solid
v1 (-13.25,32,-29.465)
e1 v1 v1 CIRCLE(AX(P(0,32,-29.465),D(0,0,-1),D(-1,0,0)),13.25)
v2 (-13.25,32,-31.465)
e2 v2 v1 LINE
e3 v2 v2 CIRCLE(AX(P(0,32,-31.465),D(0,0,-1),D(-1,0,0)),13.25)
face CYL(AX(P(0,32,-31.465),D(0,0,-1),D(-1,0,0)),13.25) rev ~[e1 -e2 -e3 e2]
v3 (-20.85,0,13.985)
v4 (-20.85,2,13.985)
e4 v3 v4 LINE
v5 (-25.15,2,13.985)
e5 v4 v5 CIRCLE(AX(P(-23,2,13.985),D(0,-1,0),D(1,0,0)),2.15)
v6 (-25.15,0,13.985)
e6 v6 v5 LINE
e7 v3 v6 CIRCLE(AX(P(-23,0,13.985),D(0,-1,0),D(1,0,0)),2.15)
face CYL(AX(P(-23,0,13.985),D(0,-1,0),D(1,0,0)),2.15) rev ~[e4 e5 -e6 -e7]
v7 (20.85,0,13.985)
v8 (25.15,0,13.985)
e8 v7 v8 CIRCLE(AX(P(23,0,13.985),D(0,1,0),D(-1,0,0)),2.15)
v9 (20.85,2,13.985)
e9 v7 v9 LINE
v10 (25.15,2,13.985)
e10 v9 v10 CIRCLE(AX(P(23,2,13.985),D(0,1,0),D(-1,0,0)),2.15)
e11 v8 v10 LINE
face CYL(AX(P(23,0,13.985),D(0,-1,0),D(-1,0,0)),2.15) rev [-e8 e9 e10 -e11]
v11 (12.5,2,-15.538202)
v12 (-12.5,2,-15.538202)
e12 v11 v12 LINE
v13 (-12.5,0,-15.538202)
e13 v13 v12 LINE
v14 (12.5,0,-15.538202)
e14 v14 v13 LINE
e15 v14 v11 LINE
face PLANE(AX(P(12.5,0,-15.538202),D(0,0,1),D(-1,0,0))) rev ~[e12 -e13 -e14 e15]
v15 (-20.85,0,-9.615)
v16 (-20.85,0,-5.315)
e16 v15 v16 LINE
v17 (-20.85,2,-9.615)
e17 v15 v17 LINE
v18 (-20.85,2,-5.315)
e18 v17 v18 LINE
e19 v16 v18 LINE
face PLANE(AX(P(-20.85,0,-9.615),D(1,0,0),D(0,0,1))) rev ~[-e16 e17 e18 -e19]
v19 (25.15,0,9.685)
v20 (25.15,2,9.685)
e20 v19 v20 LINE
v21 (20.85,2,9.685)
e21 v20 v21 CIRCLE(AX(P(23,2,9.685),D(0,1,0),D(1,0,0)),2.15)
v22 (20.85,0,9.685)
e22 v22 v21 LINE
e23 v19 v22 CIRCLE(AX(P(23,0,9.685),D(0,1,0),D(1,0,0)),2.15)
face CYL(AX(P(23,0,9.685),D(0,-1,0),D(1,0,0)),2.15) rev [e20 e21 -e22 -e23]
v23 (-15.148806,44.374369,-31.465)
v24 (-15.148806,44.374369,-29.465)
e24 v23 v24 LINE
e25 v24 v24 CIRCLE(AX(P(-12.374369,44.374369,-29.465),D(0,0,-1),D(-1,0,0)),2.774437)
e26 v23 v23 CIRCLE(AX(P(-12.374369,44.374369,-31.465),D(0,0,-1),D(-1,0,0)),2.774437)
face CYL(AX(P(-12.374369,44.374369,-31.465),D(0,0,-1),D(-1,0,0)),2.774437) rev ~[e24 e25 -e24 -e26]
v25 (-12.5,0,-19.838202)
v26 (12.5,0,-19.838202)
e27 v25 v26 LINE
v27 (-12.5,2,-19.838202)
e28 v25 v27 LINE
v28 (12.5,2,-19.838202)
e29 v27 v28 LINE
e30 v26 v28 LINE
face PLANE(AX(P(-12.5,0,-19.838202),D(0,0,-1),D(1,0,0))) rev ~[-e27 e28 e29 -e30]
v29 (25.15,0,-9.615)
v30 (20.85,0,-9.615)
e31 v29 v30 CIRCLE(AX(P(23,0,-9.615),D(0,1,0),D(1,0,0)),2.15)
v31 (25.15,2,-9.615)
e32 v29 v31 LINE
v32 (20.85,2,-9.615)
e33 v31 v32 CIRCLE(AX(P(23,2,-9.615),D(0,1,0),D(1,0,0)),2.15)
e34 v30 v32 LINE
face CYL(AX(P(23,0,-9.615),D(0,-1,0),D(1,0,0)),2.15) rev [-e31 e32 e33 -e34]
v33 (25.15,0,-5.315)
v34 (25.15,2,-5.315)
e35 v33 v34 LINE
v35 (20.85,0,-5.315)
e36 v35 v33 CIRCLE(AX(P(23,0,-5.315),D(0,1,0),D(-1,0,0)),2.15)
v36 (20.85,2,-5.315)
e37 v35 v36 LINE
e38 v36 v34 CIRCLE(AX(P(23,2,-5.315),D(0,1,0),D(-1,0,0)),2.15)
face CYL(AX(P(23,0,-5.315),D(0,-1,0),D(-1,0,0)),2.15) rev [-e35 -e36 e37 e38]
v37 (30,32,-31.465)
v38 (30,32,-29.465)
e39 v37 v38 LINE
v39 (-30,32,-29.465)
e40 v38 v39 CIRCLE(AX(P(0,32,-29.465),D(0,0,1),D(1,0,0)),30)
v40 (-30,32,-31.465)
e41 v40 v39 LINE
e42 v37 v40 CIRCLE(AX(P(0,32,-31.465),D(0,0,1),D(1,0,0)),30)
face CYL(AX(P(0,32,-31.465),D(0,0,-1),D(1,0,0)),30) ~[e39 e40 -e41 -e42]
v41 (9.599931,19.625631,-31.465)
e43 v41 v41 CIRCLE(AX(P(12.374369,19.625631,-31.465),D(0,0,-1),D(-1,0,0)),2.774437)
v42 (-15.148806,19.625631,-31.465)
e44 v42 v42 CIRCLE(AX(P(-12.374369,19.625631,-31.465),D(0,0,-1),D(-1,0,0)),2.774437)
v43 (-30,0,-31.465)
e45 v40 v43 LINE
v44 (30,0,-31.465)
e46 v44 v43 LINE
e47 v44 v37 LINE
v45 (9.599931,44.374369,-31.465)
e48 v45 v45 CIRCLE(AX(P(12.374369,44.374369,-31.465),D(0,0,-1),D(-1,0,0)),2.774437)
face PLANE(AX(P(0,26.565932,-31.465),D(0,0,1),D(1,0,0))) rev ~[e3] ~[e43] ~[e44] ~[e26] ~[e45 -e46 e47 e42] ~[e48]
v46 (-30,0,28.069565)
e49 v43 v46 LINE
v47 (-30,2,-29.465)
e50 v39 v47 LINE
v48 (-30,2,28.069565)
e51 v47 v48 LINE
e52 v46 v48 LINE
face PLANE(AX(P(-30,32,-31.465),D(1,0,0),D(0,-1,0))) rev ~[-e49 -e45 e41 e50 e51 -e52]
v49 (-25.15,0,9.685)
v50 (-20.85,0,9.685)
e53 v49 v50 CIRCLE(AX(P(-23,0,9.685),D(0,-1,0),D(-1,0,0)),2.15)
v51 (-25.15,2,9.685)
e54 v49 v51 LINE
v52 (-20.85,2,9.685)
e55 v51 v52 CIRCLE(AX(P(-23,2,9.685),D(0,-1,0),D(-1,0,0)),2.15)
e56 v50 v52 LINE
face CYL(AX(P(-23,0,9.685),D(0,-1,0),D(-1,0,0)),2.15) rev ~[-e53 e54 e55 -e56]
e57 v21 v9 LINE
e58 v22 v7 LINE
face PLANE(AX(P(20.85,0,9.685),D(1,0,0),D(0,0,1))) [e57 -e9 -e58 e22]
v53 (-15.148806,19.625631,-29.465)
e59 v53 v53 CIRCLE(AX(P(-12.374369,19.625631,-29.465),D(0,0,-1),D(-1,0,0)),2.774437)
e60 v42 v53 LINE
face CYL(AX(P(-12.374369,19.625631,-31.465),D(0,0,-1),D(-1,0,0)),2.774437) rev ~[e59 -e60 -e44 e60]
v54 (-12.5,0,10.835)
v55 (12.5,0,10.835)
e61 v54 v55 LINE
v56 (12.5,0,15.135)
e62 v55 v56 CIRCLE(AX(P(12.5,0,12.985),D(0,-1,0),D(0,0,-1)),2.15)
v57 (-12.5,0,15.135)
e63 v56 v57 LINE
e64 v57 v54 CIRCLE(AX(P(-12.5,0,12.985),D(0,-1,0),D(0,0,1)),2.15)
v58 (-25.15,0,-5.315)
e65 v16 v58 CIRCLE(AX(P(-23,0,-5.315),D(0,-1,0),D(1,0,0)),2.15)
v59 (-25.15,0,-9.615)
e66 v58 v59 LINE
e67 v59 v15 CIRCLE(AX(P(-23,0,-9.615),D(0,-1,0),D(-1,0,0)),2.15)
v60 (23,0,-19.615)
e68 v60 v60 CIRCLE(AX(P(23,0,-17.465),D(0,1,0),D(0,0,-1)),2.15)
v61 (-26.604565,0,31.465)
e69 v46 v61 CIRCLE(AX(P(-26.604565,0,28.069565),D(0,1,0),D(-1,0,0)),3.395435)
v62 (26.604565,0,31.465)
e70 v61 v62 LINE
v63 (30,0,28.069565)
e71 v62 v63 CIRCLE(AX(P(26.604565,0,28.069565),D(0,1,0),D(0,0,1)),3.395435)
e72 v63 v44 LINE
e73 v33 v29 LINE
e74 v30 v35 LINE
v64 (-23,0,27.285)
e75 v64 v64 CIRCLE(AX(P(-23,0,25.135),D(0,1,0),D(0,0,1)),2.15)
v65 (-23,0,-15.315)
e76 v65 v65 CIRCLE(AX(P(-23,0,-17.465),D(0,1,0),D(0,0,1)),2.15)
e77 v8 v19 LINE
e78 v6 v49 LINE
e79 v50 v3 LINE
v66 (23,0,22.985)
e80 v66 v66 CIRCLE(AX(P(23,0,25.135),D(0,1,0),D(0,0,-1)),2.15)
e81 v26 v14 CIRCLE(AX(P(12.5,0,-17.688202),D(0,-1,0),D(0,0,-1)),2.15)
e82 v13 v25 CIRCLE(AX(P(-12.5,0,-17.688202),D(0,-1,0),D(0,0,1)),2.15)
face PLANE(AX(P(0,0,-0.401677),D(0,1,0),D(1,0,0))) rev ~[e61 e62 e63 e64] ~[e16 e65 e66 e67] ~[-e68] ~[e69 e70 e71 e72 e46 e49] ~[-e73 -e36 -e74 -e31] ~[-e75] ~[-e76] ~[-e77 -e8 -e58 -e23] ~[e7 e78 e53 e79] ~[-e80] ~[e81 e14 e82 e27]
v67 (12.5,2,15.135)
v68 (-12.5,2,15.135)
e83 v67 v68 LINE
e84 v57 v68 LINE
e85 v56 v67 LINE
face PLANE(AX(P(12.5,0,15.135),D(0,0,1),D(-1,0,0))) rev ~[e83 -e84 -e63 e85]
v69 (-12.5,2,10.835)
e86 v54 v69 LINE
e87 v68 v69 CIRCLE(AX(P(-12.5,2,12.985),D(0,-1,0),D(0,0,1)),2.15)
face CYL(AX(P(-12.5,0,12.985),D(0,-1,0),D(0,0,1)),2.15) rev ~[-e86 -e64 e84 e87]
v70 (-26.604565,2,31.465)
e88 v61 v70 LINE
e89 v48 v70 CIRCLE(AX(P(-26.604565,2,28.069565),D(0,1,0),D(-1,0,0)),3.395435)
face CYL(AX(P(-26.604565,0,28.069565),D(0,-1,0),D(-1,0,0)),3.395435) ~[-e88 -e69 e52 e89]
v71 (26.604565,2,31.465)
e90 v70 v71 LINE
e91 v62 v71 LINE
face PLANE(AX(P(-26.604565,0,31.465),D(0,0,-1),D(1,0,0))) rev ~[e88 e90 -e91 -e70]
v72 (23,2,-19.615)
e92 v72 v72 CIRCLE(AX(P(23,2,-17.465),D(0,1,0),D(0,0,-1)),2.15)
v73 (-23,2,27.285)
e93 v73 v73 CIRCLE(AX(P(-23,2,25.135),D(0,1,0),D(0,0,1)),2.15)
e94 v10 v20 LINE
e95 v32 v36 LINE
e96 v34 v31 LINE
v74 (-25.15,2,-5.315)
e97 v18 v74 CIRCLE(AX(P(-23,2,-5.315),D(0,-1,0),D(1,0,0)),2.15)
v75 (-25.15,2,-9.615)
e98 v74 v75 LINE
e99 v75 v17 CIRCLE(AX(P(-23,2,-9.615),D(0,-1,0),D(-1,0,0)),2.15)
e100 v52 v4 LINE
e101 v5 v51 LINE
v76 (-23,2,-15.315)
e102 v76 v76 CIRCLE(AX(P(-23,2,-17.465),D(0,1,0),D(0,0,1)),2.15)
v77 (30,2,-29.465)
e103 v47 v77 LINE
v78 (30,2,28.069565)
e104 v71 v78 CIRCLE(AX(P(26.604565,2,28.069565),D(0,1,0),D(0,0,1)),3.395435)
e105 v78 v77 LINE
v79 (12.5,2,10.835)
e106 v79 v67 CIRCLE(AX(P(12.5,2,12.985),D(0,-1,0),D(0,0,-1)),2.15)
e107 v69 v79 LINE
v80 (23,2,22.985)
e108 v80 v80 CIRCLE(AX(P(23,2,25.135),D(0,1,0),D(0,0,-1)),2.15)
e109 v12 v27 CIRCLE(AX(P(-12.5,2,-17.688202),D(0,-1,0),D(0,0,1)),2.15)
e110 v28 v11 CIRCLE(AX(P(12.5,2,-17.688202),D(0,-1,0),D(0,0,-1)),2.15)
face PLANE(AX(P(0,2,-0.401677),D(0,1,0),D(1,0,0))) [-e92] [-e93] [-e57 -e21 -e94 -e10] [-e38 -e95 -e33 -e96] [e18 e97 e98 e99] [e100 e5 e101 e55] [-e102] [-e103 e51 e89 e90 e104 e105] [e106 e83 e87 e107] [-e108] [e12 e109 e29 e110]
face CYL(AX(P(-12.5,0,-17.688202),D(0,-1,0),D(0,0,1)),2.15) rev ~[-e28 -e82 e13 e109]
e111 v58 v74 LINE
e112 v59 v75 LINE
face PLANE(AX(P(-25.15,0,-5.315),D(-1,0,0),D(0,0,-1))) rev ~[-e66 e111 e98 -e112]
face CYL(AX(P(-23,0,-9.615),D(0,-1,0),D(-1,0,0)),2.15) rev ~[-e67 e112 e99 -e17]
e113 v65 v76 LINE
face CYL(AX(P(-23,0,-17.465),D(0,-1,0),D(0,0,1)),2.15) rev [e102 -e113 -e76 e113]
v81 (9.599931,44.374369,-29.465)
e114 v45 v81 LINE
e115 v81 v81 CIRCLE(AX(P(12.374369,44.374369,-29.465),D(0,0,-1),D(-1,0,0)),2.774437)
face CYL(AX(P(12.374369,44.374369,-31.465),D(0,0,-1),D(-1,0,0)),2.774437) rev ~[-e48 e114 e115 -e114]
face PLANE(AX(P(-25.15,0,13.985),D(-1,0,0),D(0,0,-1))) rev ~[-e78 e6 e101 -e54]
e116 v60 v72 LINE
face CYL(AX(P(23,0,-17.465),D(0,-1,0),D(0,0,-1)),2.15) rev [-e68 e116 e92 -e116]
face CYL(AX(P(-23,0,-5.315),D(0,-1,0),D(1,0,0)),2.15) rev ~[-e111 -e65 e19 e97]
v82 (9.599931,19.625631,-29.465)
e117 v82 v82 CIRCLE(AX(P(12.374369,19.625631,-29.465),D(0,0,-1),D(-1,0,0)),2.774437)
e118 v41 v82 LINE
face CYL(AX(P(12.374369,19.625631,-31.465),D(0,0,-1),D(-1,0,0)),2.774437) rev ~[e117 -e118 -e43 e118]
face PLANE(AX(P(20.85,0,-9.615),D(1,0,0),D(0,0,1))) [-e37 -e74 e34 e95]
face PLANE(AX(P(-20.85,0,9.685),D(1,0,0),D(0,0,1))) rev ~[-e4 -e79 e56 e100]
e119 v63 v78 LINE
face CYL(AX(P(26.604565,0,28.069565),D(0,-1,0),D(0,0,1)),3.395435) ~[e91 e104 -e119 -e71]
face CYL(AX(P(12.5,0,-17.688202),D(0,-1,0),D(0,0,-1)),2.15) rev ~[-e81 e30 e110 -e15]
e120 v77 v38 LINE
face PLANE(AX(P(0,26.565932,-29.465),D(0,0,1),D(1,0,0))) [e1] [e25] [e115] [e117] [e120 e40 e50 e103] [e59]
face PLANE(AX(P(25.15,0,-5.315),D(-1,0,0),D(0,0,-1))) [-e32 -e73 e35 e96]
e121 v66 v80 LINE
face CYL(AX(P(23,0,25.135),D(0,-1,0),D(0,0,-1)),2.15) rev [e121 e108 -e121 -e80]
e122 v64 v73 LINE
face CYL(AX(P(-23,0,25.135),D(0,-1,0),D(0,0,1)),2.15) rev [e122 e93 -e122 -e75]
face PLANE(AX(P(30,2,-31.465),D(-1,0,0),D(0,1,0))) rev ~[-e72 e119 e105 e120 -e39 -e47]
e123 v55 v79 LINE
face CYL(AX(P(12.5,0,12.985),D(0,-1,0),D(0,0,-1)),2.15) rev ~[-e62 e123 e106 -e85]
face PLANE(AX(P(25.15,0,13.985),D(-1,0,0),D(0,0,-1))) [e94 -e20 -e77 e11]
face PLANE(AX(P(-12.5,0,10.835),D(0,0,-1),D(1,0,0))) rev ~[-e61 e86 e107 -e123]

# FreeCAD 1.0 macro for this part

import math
import FreeCAD as App
import Part
import Sketcher
from FreeCAD import Vector

doc = App.newDocument("Part")
params = doc.addObject("Spreadsheet::Sheet", "Params")
for row, (alias, value) in enumerate([
    ("sketch1_diameter", "4.3 mm"),
    ("sketch1_width", "60 mm"),
    ("sketch1_width2", "25 mm"),
    ("sketch1_height", "4.3 mm"),
    ("pad1_length", "2 mm"),
    ("sketch2_radius", "30 mm"),
    ("sketch2_diameter", "26.5 mm"),
    ("sketch2_height", "30 mm"),
    ("pad2_length", "2 mm"),
], start=1):
    params.set(f"A{row}", alias)
    params.set(f"B{row}", "=" + value)
    params.setAlias(f"B{row}", alias)

body = doc.addObject("PartDesign::Body", "Body")

sketch1 = body.newObject("Sketcher::SketchObject", "Sketch")
sketch1.AttachmentSupport = (doc.getObject("XZ_Plane"), [""])
sketch1.MapMode = "FlatFace"
sketch1.addGeometry([
    Part.LineSegment(Vector(-26.604565, 31.465, 0), Vector(26.604565, 31.465, 0)),
    Part.ArcOfCircle(Part.Circle(Vector(26.604565, 28.069565, 0), Vector(0, 0, 1), 3.395435), math.radians(0), math.radians(90)),
    Part.LineSegment(Vector(30, 28.069565, 0), Vector(30, -31.465, 0)),
    Part.LineSegment(Vector(30, -31.465, 0), Vector(-30, -31.465, 0)),
    Part.LineSegment(Vector(-30, -31.465, 0), Vector(-30, 28.069565, 0)),
    Part.ArcOfCircle(Part.Circle(Vector(-26.604565, 28.069565, 0), Vector(0, 0, 1), 3.395435), math.radians(90), math.radians(180)),
    Part.Circle(Vector(-23, 25.135, 0), Vector(0, 0, 1), 2.15),
    Part.ArcOfCircle(Part.Circle(Vector(-23, 9.685, 0), Vector(0, 0, 1), 2.15), math.radians(180), math.radians(360)),
    Part.LineSegment(Vector(-20.85, 9.685, 0), Vector(-20.85, 13.985, 0)),
    Part.ArcOfCircle(Part.Circle(Vector(-23, 13.985, 0), Vector(0, 0, 1), 2.15), math.radians(0), math.radians(180)),
    Part.LineSegment(Vector(-25.15, 13.985, 0), Vector(-25.15, 9.685, 0)),
    Part.Circle(Vector(23, 25.135, 0), Vector(0, 0, 1), 2.15),
    Part.ArcOfCircle(Part.Circle(Vector(-12.5, 12.985, 0), Vector(0, 0, 1), 2.15), math.radians(90), math.radians(270)),
    Part.LineSegment(Vector(-12.5, 10.835, 0), Vector(12.5, 10.835, 0)),
    Part.ArcOfCircle(Part.Circle(Vector(12.5, 12.985, 0), Vector(0, 0, 1), 2.15), math.radians(-90), math.radians(90)),
    Part.LineSegment(Vector(12.5, 15.135, 0), Vector(-12.5, 15.135, 0)),
    Part.LineSegment(Vector(20.85, 13.985, 0), Vector(20.85, 9.685, 0)),
    Part.ArcOfCircle(Part.Circle(Vector(23, 9.685, 0), Vector(0, 0, 1), 2.15), math.radians(180), math.radians(360)),
    Part.LineSegment(Vector(25.15, 9.685, 0), Vector(25.15, 13.985, 0)),
    Part.ArcOfCircle(Part.Circle(Vector(23, 13.985, 0), Vector(0, 0, 1), 2.15), math.radians(0), math.radians(180)),
    Part.ArcOfCircle(Part.Circle(Vector(-23, -9.615, 0), Vector(0, 0, 1), 2.15), math.radians(180), math.radians(360)),
    Part.LineSegment(Vector(-20.85, -9.615, 0), Vector(-20.85, -5.315, 0)),
    Part.ArcOfCircle(Part.Circle(Vector(-23, -5.315, 0), Vector(0, 0, 1), 2.15), math.radians(0), math.radians(180)),
    Part.LineSegment(Vector(-25.15, -5.315, 0), Vector(-25.15, -9.615, 0)),
    Part.Circle(Vector(-23, -17.465, 0), Vector(0, 0, 1), 2.15),
    Part.LineSegment(Vector(20.85, -5.315, 0), Vector(20.85, -9.615, 0)),
    Part.ArcOfCircle(Part.Circle(Vector(23, -9.615, 0), Vector(0, 0, 1), 2.15), math.radians(180), math.radians(360)),
    Part.LineSegment(Vector(25.15, -9.615, 0), Vector(25.15, -5.315, 0)),
    Part.ArcOfCircle(Part.Circle(Vector(23, -5.315, 0), Vector(0, 0, 1), 2.15), math.radians(0), math.radians(180)),
    Part.ArcOfCircle(Part.Circle(Vector(-12.5, -17.688202, 0), Vector(0, 0, 1), 2.15), math.radians(90), math.radians(270)),
    Part.LineSegment(Vector(-12.5, -19.838202, 0), Vector(12.5, -19.838202, 0)),
    Part.ArcOfCircle(Part.Circle(Vector(12.5, -17.688202, 0), Vector(0, 0, 1), 2.15), math.radians(-90), math.radians(90)),
    Part.LineSegment(Vector(12.5, -15.538202, 0), Vector(-12.5, -15.538202, 0)),
    Part.Circle(Vector(23, -17.465, 0), Vector(0, 0, 1), 2.15),
], False)
sketch1.addConstraint([
    Sketcher.Constraint("Tangent", 0, 2, 1, 2),
    Sketcher.Constraint("Tangent", 1, 1, 2, 1),
    Sketcher.Constraint("Coincident", 2, 2, 3, 1),
    Sketcher.Constraint("Coincident", 3, 2, 4, 1),
    Sketcher.Constraint("Tangent", 4, 2, 5, 2),
    Sketcher.Constraint("Tangent", 5, 1, 0, 1),
    Sketcher.Constraint("Tangent", 7, 2, 8, 1),
    Sketcher.Constraint("Tangent", 8, 2, 9, 1),
    Sketcher.Constraint("Tangent", 9, 2, 10, 1),
    Sketcher.Constraint("Tangent", 10, 2, 7, 1),
    Sketcher.Constraint("Tangent", 12, 2, 13, 1),
    Sketcher.Constraint("Tangent", 13, 2, 14, 1),
    Sketcher.Constraint("Tangent", 14, 2, 15, 1),
    Sketcher.Constraint("Tangent", 15, 2, 12, 1),
    Sketcher.Constraint("Tangent", 16, 2, 17, 1),
    Sketcher.Constraint("Tangent", 17, 2, 18, 1),
    Sketcher.Constraint("Tangent", 18, 2, 19, 1),
    Sketcher.Constraint("Tangent", 19, 2, 16, 1),
    Sketcher.Constraint("Tangent", 20, 2, 21, 1),
    Sketcher.Constraint("Tangent", 21, 2, 22, 1),
    Sketcher.Constraint("Tangent", 22, 2, 23, 1),
    Sketcher.Constraint("Tangent", 23, 2, 20, 1),
    Sketcher.Constraint("Tangent", 25, 2, 26, 1),
    Sketcher.Constraint("Tangent", 26, 2, 27, 1),
    Sketcher.Constraint("Tangent", 27, 2, 28, 1),
    Sketcher.Constraint("Tangent", 28, 2, 25, 1),
    Sketcher.Constraint("Tangent", 29, 2, 30, 1),
    Sketcher.Constraint("Tangent", 30, 2, 31, 1),
    Sketcher.Constraint("Tangent", 31, 2, 32, 1),
    Sketcher.Constraint("Tangent", 32, 2, 29, 1),
    Sketcher.Constraint("Horizontal", 0),
    Sketcher.Constraint("Vertical", 2),
    Sketcher.Constraint("Horizontal", 3),
    Sketcher.Constraint("Vertical", 4),
    Sketcher.Constraint("Vertical", 8),
    Sketcher.Constraint("Vertical", 10),
    Sketcher.Constraint("Horizontal", 13),
    Sketcher.Constraint("Horizontal", 15),
    Sketcher.Constraint("Vertical", 16),
    Sketcher.Constraint("Vertical", 18),
    Sketcher.Constraint("Vertical", 21),
    Sketcher.Constraint("Vertical", 23),
    Sketcher.Constraint("Vertical", 25),
    Sketcher.Constraint("Vertical", 27),
    Sketcher.Constraint("Horizontal", 30),
    Sketcher.Constraint("Horizontal", 32),
    Sketcher.Constraint("Equal", 1, 5),
    Sketcher.Constraint("Equal", 6, 7),
    Sketcher.Constraint("Equal", 9, 11),
    Sketcher.Constraint("Equal", 11, 12),
    Sketcher.Constraint("Equal", 14, 17),
    Sketcher.Constraint("Equal", 19, 20),
    Sketcher.Constraint("Equal", 22, 24),
    Sketcher.Constraint("Equal", 24, 26),
    Sketcher.Constraint("Equal", 28, 29),
    Sketcher.Constraint("Equal", 31, 33),
    Sketcher.Constraint("Symmetric", 6, 3, 11, 3, -2),
    Sketcher.Constraint("Symmetric", 7, 3, 17, 3, -2),
    Sketcher.Constraint("Symmetric", 20, 3, 26, 3, -2),
    Sketcher.Constraint("Symmetric", 24, 3, 33, 3, -2),
    Sketcher.Constraint("Horizontal", 9, 3, 19, 3),
    Sketcher.Constraint("Horizontal", 22, 3, 28, 3),
    Sketcher.Constraint("Vertical", 6, 3, 7, 3),
    Sketcher.Constraint("Vertical", 9, 3, 20, 3),
    Sketcher.Constraint("Vertical", 22, 3, 24, 3),
    Sketcher.Constraint("Vertical", 12, 3, 29, 3),
    Sketcher.Constraint("Vertical", 14, 3, 31, 3),
    Sketcher.Constraint("Equal", 18, 21),
    Sketcher.Constraint("Diameter", 6, 4.3),
    Sketcher.Constraint("DistanceX", 3, 2, 3, 1, 60.0),
    Sketcher.Constraint("DistanceX", 13, 1, 13, 2, 25.0),
    Sketcher.Constraint("DistanceY", 8, 1, 8, 2, 4.3),
    Sketcher.Constraint("DistanceX", 6, 3, -1, 1, 23.0),
    Sketcher.Constraint("DistanceX", -1, 1, 1, 1, 30.0),
    Sketcher.Constraint("DistanceY", 12, 3, 9, 3, 1.0),
    Sketcher.Constraint("DistanceY", 22, 3, 7, 3, 15.0),
    Sketcher.Constraint("DistanceY", 2, 2, 33, 3, 14.0),
    Sketcher.Constraint("DistanceY", 14, 2, 11, 3, 10.0),
    Sketcher.Constraint("DistanceX", 12, 3, -1, 1, 12.5),
    Sketcher.Constraint("DistanceY", 24, 3, 20, 3, 7.85),
    Sketcher.Constraint("DistanceY", 11, 3, 0, 2, 6.33),
    Sketcher.Constraint("DistanceY", -1, 1, 6, 3, 25.135),
    Sketcher.Constraint("Radius", 1, 3.395435),
    Sketcher.Constraint("DistanceY", 29, 3, -1, 1, 17.688202),
])
sketch1.setExpression("Constraints[68]", "Params.sketch1_diameter")
sketch1.setExpression("Constraints[69]", "Params.sketch1_width")
sketch1.setExpression("Constraints[70]", "Params.sketch1_width2")
sketch1.setExpression("Constraints[71]", "Params.sketch1_height")
pad1 = body.newObject("PartDesign::Pad", "Pad")
pad1.Profile = sketch1
pad1.setExpression("Length", "Params.pad1_length")
pad1.Reversed = True

sketch2 = body.newObject("Sketcher::SketchObject", "Sketch001")
sketch2.AttachmentSupport = (doc.getObject("XY_Plane"), [""])
sketch2.MapMode = "FlatFace"
sketch2.AttachmentOffset = App.Placement(Vector(0, 0, -31.465), App.Rotation())
sketch2.addGeometry([
    Part.ArcOfCircle(Part.Circle(Vector(0, 32, 0), Vector(0, 0, 1), 30), math.radians(0), math.radians(180)),
    Part.LineSegment(Vector(30, 32, 0), Vector(30, 2, 0)),
    Part.LineSegment(Vector(30, 2, 0), Vector(-30, 2, 0)),
    Part.LineSegment(Vector(-30, 2, 0), Vector(-30, 32, 0)),
    Part.Circle(Vector(-12.374369, 19.625631, 0), Vector(0, 0, 1), 2.774437),
    Part.Circle(Vector(12.374369, 19.625631, 0), Vector(0, 0, 1), 2.774437),
    Part.Circle(Vector(-12.374369, 44.374369, 0), Vector(0, 0, 1), 2.774437),
    Part.Circle(Vector(0, 32, 0), Vector(0, 0, 1), 13.25),
    Part.Circle(Vector(12.374369, 44.374369, 0), Vector(0, 0, 1), 2.774437),
], False)
sketch2.addConstraint([
    Sketcher.Constraint("Tangent", 0, 1, 1, 1),
    Sketcher.Constraint("Coincident", 1, 2, 2, 1),
    Sketcher.Constraint("Coincident", 2, 2, 3, 1),
    Sketcher.Constraint("Tangent", 3, 2, 0, 2),
    Sketcher.Constraint("Vertical", 1),
    Sketcher.Constraint("Horizontal", 2),
    Sketcher.Constraint("Vertical", 3),
    Sketcher.Constraint("Coincident", 7, 3, 0, 3),
    Sketcher.Constraint("Equal", 4, 5),
    Sketcher.Constraint("Equal", 5, 6),
    Sketcher.Constraint("Equal", 6, 8),
    Sketcher.Constraint("Symmetric", 4, 3, 5, 3, -2),
    Sketcher.Constraint("Symmetric", 6, 3, 8, 3, -2),
    Sketcher.Constraint("PointOnObject", 0, 3, -2),
    Sketcher.Constraint("Vertical", 4, 3, 6, 3),
    Sketcher.Constraint("Radius", 0, 30.0),
    Sketcher.Constraint("Diameter", 7, 26.5),
    Sketcher.Constraint("DistanceY", 1, 2, 1, 1, 30.0),
    Sketcher.Constraint("DistanceY", -1, 1, 0, 3, 32.0),
    Sketcher.Constraint("Diameter", 4, 5.548875),
    Sketcher.Constraint("DistanceX", 4, 3, -1, 1, 12.374369),
    Sketcher.Constraint("DistanceY", -1, 1, 4, 3, 19.625631),
    Sketcher.Constraint("DistanceY", -1, 1, 6, 3, 44.374369),
])
sketch2.setExpression("Constraints[15]", "Params.sketch2_radius")
sketch2.setExpression("Constraints[16]", "Params.sketch2_diameter")
sketch2.setExpression("Constraints[17]", "Params.sketch2_height")
pad2 = body.newObject("PartDesign::Pad", "Pad001")
pad2.Profile = sketch2
pad2.setExpression("Length", "Params.pad2_length")

doc.recompute()
